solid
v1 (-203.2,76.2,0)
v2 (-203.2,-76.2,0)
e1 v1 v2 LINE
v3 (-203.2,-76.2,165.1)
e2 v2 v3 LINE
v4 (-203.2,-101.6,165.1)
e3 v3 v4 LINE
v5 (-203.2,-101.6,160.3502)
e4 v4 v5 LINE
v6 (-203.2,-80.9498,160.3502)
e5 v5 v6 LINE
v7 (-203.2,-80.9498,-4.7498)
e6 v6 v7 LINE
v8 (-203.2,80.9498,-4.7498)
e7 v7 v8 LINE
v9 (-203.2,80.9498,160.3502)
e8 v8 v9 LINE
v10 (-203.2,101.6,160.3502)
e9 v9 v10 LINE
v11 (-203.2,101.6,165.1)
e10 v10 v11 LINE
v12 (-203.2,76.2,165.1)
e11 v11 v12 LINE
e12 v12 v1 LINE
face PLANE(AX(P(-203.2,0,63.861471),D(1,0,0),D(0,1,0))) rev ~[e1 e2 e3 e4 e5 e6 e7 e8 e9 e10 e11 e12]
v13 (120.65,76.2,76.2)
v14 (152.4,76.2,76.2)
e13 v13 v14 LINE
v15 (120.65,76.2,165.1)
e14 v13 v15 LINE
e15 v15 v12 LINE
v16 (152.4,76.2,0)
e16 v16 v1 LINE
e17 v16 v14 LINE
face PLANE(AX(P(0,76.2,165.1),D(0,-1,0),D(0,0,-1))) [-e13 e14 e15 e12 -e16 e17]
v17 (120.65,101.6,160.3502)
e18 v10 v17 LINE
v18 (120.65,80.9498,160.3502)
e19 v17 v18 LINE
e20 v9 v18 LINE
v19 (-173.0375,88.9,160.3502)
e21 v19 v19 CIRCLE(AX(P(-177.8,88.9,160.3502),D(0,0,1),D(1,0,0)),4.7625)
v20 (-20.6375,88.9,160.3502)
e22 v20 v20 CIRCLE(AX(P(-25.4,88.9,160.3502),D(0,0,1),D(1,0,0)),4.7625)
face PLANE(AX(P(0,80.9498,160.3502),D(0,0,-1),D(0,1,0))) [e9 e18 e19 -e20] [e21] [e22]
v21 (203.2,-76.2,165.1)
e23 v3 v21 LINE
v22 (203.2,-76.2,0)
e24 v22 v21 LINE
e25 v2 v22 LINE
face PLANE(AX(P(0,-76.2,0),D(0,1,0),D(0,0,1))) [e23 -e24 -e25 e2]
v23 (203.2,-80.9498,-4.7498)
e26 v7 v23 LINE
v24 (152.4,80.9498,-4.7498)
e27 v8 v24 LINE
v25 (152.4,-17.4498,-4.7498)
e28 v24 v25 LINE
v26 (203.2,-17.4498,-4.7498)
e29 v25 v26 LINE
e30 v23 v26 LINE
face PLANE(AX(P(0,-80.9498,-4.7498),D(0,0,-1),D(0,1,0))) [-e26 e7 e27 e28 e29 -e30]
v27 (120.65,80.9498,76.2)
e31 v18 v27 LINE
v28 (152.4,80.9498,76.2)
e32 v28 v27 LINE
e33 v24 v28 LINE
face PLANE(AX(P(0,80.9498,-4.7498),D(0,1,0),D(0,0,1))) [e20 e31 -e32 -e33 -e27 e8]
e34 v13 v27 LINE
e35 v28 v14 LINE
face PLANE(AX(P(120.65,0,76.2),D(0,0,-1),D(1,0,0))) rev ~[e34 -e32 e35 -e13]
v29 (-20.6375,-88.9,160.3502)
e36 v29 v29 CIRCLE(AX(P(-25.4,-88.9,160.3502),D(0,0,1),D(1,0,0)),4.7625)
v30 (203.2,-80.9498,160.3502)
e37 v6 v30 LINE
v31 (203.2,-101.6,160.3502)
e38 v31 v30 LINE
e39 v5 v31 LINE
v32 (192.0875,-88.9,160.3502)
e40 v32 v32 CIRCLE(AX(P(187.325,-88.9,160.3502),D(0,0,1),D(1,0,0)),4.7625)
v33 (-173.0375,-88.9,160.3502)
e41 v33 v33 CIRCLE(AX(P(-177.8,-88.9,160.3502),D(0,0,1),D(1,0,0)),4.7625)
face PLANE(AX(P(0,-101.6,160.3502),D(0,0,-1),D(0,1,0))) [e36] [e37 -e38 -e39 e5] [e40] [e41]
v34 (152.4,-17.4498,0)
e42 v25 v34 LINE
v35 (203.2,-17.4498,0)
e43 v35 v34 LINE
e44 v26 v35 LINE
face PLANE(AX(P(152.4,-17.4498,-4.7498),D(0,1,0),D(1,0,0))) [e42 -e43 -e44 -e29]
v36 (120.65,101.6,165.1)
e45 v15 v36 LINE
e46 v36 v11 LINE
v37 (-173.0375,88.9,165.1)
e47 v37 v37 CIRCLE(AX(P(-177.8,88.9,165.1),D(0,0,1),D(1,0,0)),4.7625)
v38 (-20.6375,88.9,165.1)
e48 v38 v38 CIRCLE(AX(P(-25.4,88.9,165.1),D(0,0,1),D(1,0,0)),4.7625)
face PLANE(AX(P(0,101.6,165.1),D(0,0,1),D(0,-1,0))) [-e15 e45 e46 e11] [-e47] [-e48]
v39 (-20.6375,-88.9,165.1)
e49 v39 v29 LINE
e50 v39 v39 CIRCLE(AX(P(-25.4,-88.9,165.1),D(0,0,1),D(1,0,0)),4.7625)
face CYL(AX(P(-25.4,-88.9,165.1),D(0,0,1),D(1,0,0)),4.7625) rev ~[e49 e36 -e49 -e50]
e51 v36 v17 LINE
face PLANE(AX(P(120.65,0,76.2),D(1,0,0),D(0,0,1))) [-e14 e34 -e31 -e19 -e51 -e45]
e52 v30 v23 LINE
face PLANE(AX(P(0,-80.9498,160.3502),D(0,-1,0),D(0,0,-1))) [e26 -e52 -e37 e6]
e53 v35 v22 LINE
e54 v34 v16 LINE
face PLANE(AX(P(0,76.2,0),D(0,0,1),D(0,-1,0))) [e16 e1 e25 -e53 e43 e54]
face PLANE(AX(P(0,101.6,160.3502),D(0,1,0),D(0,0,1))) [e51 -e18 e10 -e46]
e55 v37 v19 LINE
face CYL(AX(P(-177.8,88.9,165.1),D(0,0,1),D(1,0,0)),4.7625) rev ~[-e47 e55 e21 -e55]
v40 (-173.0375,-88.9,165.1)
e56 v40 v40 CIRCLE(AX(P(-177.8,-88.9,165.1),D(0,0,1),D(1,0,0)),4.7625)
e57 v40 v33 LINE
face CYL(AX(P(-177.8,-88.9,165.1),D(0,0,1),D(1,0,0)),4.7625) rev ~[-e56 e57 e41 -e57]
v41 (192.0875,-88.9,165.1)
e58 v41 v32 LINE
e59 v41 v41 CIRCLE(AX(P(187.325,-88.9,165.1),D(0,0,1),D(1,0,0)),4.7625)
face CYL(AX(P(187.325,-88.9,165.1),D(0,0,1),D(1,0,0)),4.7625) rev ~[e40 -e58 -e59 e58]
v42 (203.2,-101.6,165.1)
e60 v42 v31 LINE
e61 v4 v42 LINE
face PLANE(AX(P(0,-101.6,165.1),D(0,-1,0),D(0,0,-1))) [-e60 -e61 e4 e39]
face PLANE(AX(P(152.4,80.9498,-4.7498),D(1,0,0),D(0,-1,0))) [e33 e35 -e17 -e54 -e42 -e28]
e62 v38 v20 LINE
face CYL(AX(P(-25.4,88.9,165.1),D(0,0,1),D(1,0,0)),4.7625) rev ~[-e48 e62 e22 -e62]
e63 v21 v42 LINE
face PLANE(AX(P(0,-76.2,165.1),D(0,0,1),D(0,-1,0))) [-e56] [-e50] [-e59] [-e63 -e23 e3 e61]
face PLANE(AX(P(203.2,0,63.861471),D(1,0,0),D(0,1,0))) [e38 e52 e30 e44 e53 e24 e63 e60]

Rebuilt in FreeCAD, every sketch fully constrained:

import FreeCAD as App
import Part
import Sketcher
Q = App.Units.Quantity


def add_polygon(sketch, points):
    """Adds a closed chain of lines whose ends are joined by coincident constraints."""
    first, n = sketch.GeometryCount, len(points)
    for a, b in zip(points, points[1:] + points[:1]):
        sketch.addGeometry(Part.LineSegment(App.Vector(*a, 0), App.Vector(*b, 0)), False)
    for i in range(n):
        sketch.addConstraint(Sketcher.Constraint("Coincident", first + i, 2, first + (i + 1) % n, 1))

doc = App.newDocument("Part")
params = doc.addObject("Spreadsheet::Sheet", "Params")
for row, (alias, value) in enumerate([
    ("sketch1_width", "6 in"),
    ("sketch1_width2", "1 in"),
    ("sketch1_height", "6.5 in"),
    ("sketch1_width3", "0.813 in"),
    ("sketch1_height2", "0.187 in"),
    ("pad1_length", "16 in"),
    ("sketch2_height", "3.5 in"),
    ("sketch2_width", "3.25 in"),
    ("sketch3_width", "2 in"),
    ("sketch3_height", "3.874 in"),
    ("sketch4_diameter", "0.375 in"),
], start=1):
    params.set(f"A{row}", alias)
    params.set(f"B{row}", "=" + value)
    params.setAlias(f"B{row}", alias)

body = doc.addObject("PartDesign::Body", "Body")

# Sketch on YZ plane
sketch1 = body.newObject("Sketcher::SketchObject", "Sketch")
sketch1.AttachmentSupport = (doc.getObject("YZ_Plane"), [""])
sketch1.MapMode = "FlatFace"
add_polygon(sketch1, [(76.2, 0), (-76.2, 0), (-76.2, 165.1), (-101.6, 165.1), (-101.6, 160.4), (-80.9, 160.4), (-80.9, -4.7), (80.9, -4.7), (80.9, 160.4), (101.6, 160.4), (101.6, 165.1), (76.2, 165.1)])  # lines 0-11
sketch1.addConstraint([
    Sketcher.Constraint("Horizontal", 0),
    Sketcher.Constraint("Vertical", 1),
    Sketcher.Constraint("Horizontal", 2),
    Sketcher.Constraint("Vertical", 3),
    Sketcher.Constraint("Horizontal", 4),
    Sketcher.Constraint("Vertical", 5),
    Sketcher.Constraint("Horizontal", 6),
    Sketcher.Constraint("Vertical", 7),
    Sketcher.Constraint("Horizontal", 8),
    Sketcher.Constraint("Vertical", 9),
    Sketcher.Constraint("Horizontal", 10),
    Sketcher.Constraint("Vertical", 11),
    Sketcher.Constraint("Symmetric", 0, 2, 11, 2, -1, 1),
    Sketcher.Constraint("Symmetric", 4, 2, 7, 2, -2),
    Sketcher.Constraint("Symmetric", 2, 2, 9, 2, -2),
    Sketcher.Constraint("Equal", 1, 5),
    Sketcher.Constraint("DistanceX", 0, 2, 0, 1, Q("6 in")),
    Sketcher.Constraint("DistanceX", 2, 2, 2, 1, Q("1 in")),
    Sketcher.Constraint("DistanceY", 1, 1, 1, 2, Q("6.5 in")),
    Sketcher.Constraint("DistanceX", 4, 1, 4, 2, Q("0.813 in")),
    Sketcher.Constraint("DistanceY", 3, 2, 3, 1, Q("0.187 in")),
])
sketch1.setExpression("Constraints[28]", "Params.sketch1_width")
sketch1.setExpression("Constraints[29]", "Params.sketch1_width2")
sketch1.setExpression("Constraints[30]", "Params.sketch1_height")
sketch1.setExpression("Constraints[31]", "Params.sketch1_width3")
sketch1.setExpression("Constraints[32]", "Params.sketch1_height2")
pad1 = body.newObject("PartDesign::Pad", "Pad")
pad1.Profile = sketch1
pad1.setExpression("Length", "Params.pad1_length")
pad1.Midplane = True

# Sketch on XZ plane
sketch2 = body.newObject("Sketcher::SketchObject", "Sketch001")
sketch2.AttachmentSupport = (doc.getObject("XZ_Plane"), [""])
sketch2.MapMode = "FlatFace"
add_polygon(sketch2, [(121, 165), (121, 76), (203, 76), (203, 165)])  # lines 0-3
sketch2.addConstraint([
    Sketcher.Constraint("Vertical", 0),
    Sketcher.Constraint("Horizontal", 1),
    Sketcher.Constraint("Vertical", 2),
    Sketcher.Constraint("Horizontal", 3),
    Sketcher.Constraint("DistanceY", 0, 2, 0, 1, Q("3.5 in")),
    Sketcher.Constraint("DistanceY", -1, 1, 0, 2, Q("3 in")),
    Sketcher.Constraint("DistanceX", -1, 1, 1, 2, Q("8 in")),
    Sketcher.Constraint("DistanceX", 1, 1, 1, 2, Q("3.25 in")),
])
sketch2.setExpression("Constraints[8]", "Params.sketch2_height")
sketch2.setExpression("Constraints[11]", "Params.sketch2_width")
pocket1 = body.newObject("PartDesign::Pocket", "Pocket")
pocket1.Profile = sketch2
pocket1.Type = "ThroughAll"

# Sketch on XY plane
sketch3 = body.newObject("Sketcher::SketchObject", "Sketch002")
sketch3.AttachmentSupport = (doc.getObject("XY_Plane"), [""])
sketch3.MapMode = "FlatFace"
sketch3.AttachmentOffset = App.Placement(App.Vector(0, 0, -0.187 * 25.4), App.Rotation())
add_polygon(sketch3, [(152, -17), (152, 81), (203, 81), (203, -17)])  # lines 0-3
sketch3.addConstraint([
    Sketcher.Constraint("Vertical", 0),
    Sketcher.Constraint("Horizontal", 1),
    Sketcher.Constraint("Vertical", 2),
    Sketcher.Constraint("Horizontal", 3),
    Sketcher.Constraint("DistanceX", 1, 1, 1, 2, Q("2 in")),
    Sketcher.Constraint("DistanceX", -1, 1, 0, 2, Q("6 in")),
    Sketcher.Constraint("DistanceY", 0, 1, 0, 2, Q("3.874 in")),
    Sketcher.Constraint("DistanceY", -1, 1, 0, 2, Q("3.187 in")),
])
sketch3.setExpression("Constraints[8]", "Params.sketch3_width")
sketch3.setExpression("Constraints[10]", "Params.sketch3_height")
pocket2 = body.newObject("PartDesign::Pocket", "Pocket001")
pocket2.Profile = sketch3
pocket2.Type = "ThroughAll"
pocket2.Reversed = True

# Sketch on XY plane
sketch4 = body.newObject("Sketcher::SketchObject", "Sketch003")
sketch4.AttachmentSupport = (doc.getObject("XY_Plane"), [""])
sketch4.MapMode = "FlatFace"
sketch4.AttachmentOffset = App.Placement(App.Vector(0, 0, 6.5 * 25.4), App.Rotation())
sketch4.addGeometry([
    Part.Circle(App.Vector(-177.8, 88.9, 0), App.Vector(0, 0, 1), 4.8),  # 0
    Part.Circle(App.Vector(-25.4, 88.9, 0), App.Vector(0, 0, 1), 4.8),  # 1
    Part.Circle(App.Vector(-177.8, -88.9, 0), App.Vector(0, 0, 1), 4.8),  # 2
    Part.Circle(App.Vector(-25.4, -88.9, 0), App.Vector(0, 0, 1), 4.8),  # 3
    Part.Circle(App.Vector(187.3, -88.9, 0), App.Vector(0, 0, 1), 4.8),  # 4
], False)
sketch4.addConstraint([
    Sketcher.Constraint("Equal", 0, 1),
    Sketcher.Constraint("Equal", 1, 2),
    Sketcher.Constraint("Equal", 2, 3),
    Sketcher.Constraint("Equal", 3, 4),
    Sketcher.Constraint("Symmetric", 0, 3, 2, 3, -1),
    Sketcher.Constraint("Symmetric", 1, 3, 3, 3, -1),
    Sketcher.Constraint("Horizontal", 0, 3, 1, 3),
    Sketcher.Constraint("Horizontal", 3, 3, 4, 3),
    Sketcher.Constraint("Diameter", 0, Q("0.375 in")),
    Sketcher.Constraint("DistanceX", 0, 3, -1, 1, Q("7 in")),
    Sketcher.Constraint("DistanceX", 1, 3, -1, 1, Q("1 in")),
    Sketcher.Constraint("DistanceY", 2, 3, 0, 3, Q("7 in")),
    Sketcher.Constraint("DistanceX", -1, 1, 4, 3, Q("7.375 in")),
])
sketch4.setExpression("Constraints[8]", "Params.sketch4_diameter")
pocket3 = body.newObject("PartDesign::Pocket", "Pocket002")
pocket3.Profile = sketch4
pocket3.Type = "ThroughAll"

doc.recompute()
